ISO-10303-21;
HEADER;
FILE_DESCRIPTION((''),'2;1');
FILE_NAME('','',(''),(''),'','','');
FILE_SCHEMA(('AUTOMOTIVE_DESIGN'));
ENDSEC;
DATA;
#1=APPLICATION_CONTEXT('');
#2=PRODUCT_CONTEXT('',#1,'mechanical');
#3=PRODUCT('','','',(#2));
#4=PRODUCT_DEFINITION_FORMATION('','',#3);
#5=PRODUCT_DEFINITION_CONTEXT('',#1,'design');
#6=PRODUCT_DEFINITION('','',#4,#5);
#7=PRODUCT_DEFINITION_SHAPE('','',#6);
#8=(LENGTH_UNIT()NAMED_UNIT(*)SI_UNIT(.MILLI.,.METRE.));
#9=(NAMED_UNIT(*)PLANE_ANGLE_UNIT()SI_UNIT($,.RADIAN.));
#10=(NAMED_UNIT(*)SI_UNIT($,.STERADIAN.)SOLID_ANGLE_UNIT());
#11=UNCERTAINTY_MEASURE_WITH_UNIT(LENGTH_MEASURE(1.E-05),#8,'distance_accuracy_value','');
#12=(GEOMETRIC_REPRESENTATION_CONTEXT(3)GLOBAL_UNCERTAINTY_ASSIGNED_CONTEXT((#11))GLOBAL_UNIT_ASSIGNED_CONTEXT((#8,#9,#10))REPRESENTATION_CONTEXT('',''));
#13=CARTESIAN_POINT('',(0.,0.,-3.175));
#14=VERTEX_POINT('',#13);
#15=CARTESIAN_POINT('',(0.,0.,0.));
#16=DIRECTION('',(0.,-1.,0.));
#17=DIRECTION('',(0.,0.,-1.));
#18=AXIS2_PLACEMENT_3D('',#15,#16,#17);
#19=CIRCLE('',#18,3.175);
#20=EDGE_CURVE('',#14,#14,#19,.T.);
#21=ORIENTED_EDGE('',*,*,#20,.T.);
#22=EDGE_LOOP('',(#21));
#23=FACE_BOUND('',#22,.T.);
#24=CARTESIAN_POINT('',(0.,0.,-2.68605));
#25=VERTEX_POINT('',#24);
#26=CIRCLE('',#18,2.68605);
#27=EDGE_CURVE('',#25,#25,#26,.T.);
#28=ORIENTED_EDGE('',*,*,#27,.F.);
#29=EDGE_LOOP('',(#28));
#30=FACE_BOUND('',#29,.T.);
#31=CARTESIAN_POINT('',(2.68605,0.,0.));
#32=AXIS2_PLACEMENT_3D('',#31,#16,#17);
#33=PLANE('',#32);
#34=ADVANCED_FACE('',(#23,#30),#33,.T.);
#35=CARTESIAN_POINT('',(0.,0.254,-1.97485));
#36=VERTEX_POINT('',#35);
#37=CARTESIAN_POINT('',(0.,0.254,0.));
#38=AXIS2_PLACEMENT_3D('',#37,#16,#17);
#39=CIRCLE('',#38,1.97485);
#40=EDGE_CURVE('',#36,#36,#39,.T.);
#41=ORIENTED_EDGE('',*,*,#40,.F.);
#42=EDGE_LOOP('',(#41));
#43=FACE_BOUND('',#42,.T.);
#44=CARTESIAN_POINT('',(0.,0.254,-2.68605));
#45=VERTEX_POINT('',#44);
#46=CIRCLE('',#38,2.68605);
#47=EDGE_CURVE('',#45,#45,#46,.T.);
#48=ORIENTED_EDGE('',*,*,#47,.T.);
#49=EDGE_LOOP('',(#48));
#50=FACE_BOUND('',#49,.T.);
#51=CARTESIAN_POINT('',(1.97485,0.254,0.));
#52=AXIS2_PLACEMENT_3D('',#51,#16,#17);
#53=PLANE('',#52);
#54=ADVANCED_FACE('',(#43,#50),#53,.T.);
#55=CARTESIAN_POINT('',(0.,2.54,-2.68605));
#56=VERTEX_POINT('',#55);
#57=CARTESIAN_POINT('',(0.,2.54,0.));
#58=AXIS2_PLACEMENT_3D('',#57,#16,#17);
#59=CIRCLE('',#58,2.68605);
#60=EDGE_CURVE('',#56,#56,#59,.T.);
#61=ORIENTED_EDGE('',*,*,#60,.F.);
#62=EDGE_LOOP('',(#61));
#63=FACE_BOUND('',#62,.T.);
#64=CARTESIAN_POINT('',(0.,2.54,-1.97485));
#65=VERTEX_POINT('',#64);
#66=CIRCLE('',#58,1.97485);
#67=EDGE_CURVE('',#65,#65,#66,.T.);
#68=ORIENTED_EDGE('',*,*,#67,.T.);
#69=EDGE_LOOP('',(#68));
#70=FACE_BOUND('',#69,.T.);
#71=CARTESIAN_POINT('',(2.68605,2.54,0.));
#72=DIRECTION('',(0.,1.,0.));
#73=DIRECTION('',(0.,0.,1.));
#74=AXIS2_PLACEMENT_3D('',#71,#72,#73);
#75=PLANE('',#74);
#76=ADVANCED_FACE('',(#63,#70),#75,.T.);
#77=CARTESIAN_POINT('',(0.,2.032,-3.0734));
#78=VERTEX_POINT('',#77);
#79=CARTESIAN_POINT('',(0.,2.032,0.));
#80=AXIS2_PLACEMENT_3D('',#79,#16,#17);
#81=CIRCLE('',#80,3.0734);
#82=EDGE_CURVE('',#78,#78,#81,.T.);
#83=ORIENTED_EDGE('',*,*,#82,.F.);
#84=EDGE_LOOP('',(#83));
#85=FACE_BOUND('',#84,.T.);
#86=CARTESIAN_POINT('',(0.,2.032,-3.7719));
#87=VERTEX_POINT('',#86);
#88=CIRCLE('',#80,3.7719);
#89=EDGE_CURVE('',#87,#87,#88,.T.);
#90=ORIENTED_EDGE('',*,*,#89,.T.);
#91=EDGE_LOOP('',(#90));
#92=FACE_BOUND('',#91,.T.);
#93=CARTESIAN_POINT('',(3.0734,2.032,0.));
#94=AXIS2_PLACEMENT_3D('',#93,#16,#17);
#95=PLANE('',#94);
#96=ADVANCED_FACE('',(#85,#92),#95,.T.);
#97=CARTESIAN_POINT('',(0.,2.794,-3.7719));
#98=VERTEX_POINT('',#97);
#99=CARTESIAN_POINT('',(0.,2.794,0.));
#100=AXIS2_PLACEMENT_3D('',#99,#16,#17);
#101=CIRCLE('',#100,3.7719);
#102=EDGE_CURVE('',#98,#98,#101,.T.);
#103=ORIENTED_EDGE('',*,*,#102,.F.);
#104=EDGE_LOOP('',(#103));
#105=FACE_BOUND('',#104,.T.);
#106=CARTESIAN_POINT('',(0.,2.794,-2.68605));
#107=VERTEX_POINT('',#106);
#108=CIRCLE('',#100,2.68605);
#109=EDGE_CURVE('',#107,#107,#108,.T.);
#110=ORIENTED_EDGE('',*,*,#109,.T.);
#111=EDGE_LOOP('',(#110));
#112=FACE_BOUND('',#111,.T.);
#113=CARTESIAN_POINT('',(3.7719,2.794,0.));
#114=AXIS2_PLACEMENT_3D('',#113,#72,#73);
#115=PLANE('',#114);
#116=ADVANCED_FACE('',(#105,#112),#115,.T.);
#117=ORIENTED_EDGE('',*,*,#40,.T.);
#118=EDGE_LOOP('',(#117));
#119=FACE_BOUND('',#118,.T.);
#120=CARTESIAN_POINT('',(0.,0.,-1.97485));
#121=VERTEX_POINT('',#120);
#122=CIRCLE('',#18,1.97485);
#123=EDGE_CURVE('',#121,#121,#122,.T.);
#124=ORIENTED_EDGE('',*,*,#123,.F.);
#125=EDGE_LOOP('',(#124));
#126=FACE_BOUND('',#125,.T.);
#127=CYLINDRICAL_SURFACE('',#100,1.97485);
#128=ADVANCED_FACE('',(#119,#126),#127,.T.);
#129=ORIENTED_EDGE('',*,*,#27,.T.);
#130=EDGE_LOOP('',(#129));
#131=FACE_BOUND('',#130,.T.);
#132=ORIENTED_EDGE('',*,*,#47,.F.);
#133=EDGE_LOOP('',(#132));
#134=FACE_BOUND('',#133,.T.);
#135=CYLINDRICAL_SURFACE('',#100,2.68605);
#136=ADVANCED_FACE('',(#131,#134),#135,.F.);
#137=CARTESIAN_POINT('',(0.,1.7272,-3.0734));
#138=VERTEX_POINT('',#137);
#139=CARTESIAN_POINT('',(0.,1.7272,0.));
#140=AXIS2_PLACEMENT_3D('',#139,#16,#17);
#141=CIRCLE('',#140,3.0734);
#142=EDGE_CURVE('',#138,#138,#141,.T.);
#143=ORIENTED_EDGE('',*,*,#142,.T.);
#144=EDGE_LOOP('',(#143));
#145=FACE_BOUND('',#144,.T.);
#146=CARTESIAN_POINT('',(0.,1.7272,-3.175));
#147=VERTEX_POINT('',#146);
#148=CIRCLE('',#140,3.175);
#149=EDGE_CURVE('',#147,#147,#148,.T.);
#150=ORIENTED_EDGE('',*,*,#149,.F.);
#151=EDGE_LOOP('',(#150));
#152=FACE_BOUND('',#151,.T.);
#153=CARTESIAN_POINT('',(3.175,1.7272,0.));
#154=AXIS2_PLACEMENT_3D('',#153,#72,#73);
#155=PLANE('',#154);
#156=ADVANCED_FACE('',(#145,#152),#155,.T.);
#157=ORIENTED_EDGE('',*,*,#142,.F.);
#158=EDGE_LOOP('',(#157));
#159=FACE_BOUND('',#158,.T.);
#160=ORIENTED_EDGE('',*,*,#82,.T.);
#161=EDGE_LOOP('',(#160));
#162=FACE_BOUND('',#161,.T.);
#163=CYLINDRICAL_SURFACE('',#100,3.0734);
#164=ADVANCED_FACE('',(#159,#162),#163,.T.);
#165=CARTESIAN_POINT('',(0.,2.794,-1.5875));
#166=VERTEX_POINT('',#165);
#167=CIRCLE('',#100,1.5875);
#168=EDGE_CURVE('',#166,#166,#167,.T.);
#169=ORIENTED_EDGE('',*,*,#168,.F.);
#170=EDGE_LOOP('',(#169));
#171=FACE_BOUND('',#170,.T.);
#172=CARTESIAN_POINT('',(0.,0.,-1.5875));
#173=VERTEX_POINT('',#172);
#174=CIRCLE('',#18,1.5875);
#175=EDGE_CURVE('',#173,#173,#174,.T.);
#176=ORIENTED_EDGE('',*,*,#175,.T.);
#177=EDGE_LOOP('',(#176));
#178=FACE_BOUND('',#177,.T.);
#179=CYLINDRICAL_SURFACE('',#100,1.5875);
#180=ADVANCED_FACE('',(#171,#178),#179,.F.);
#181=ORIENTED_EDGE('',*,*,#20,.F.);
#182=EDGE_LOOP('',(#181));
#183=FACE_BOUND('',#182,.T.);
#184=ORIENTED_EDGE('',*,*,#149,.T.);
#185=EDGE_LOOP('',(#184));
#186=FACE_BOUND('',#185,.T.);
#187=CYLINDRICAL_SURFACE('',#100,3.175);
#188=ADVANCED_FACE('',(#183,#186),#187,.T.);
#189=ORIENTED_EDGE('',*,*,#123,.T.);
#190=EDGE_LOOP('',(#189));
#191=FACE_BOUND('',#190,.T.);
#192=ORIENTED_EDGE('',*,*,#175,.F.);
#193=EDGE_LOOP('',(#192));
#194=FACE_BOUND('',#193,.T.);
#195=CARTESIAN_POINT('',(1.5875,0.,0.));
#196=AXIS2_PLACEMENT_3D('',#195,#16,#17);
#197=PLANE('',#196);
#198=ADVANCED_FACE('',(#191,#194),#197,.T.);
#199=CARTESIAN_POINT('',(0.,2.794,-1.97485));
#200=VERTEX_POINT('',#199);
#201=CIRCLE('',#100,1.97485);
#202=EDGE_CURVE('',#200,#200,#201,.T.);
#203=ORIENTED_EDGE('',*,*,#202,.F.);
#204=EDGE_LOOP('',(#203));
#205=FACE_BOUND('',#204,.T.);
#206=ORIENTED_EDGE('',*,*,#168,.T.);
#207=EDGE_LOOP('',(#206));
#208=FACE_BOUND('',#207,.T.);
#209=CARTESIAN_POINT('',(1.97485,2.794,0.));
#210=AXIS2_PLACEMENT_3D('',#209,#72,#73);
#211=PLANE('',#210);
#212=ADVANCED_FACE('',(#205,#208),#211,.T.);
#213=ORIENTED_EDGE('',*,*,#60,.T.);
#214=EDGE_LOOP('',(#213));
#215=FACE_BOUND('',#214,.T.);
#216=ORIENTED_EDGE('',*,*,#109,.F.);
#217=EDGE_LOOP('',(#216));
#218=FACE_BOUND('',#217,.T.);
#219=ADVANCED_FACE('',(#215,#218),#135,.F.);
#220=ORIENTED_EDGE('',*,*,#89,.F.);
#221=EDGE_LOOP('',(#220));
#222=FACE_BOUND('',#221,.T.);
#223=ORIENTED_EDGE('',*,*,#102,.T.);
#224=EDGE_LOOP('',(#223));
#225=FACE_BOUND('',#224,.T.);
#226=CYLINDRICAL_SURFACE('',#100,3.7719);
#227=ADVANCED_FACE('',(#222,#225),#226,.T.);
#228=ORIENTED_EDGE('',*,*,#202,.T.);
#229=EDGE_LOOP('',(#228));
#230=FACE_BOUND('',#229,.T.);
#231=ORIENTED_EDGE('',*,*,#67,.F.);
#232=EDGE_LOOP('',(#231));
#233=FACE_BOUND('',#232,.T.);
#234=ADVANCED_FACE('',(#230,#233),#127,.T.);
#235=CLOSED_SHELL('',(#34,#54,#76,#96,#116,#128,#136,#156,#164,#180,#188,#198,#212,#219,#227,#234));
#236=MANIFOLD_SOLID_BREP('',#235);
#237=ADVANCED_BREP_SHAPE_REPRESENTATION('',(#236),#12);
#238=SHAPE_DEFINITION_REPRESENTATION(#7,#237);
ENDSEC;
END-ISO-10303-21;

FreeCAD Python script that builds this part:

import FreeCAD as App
import Part
import Sketcher
from FreeCAD import Vector
Q = App.Units.Quantity


def add_polygon(sketch, points):
    """Adds a closed chain of lines whose ends are joined by coincident constraints."""
    first, n = sketch.GeometryCount, len(points)
    for a, b in zip(points, points[1:] + points[:1]):
        sketch.addGeometry(Part.LineSegment(App.Vector(*a, 0), App.Vector(*b, 0)), False)
    for i in range(n):
        sketch.addConstraint(Sketcher.Constraint("Coincident", first + i, 2, first + (i + 1) % n, 1))

doc = App.newDocument("Part")
body = doc.addObject("PartDesign::Body", "Body")

sketch1 = doc.addObject("Sketcher::SketchObject", "Sketch")
body.addObject(sketch1)
sketch1.AttachmentSupport = (doc.XY_Plane, [""])
sketch1.MapMode = "FlatFace"
add_polygon(sketch1, [(1.97485, 0.254), (2.68605, 0.254), (2.68605, 0), (3.175, 0), (3.175, 1.7272), (3.0734, 1.7272), (3.0734, 2.032), (3.7719, 2.032), (3.7719, 2.794), (2.68605, 2.794), (2.68605, 2.54), (1.97485, 2.54), (1.97485, 2.794), (1.5875, 2.794), (1.5875, 0), (1.97485, 0)])
sketch1.addConstraint(Sketcher.Constraint("Horizontal", 0))
sketch1.addConstraint(Sketcher.Constraint("Vertical", 1))
sketch1.addConstraint(Sketcher.Constraint("Horizontal", 2))
sketch1.addConstraint(Sketcher.Constraint("Vertical", 3))
sketch1.addConstraint(Sketcher.Constraint("Horizontal", 4))
sketch1.addConstraint(Sketcher.Constraint("Vertical", 5))
sketch1.addConstraint(Sketcher.Constraint("Horizontal", 6))
sketch1.addConstraint(Sketcher.Constraint("Vertical", 7))
sketch1.addConstraint(Sketcher.Constraint("Horizontal", 8))
sketch1.addConstraint(Sketcher.Constraint("Vertical", 9))
sketch1.addConstraint(Sketcher.Constraint("Horizontal", 10))
sketch1.addConstraint(Sketcher.Constraint("Vertical", 11))
sketch1.addConstraint(Sketcher.Constraint("Horizontal", 12))
sketch1.addConstraint(Sketcher.Constraint("Vertical", 13))
sketch1.addConstraint(Sketcher.Constraint("Horizontal", 14))
sketch1.addConstraint(Sketcher.Constraint("Vertical", 15))
sketch1.addConstraint(Sketcher.Constraint("PointOnObject", 1, 2, -1))
sketch1.addConstraint(Sketcher.Constraint("PointOnObject", 13, 2, -1))
sketch1.addConstraint(Sketcher.Constraint("Horizontal", 8, 2, 11, 2))
sketch1.addConstraint(Sketcher.Constraint("Vertical", 1, 2, 8, 2))
sketch1.addConstraint(Sketcher.Constraint("Vertical", 11, 2, 14, 2))
sketch1.addConstraint(Sketcher.Constraint("Equal", 1, 9))
sketch1.addConstraint(Sketcher.Constraint("DistanceY", 1, 2, 1, 1, Q("0.01 in")))
sketch1.addConstraint(Sketcher.Constraint("DistanceY", 7, 1, 7, 2, Q("0.03 in")))
sketch1.addConstraint(Sketcher.Constraint("DistanceY", 13, 2, 13, 1, Q("0.11 in")))
sketch1.addConstraint(Sketcher.Constraint("DistanceX", 0, 1, 0, 2, Q("0.028 in")))
sketch1.addConstraint(Sketcher.Constraint("DistanceX", 4, 2, 4, 1, Q("0.004 in")))
sketch1.addConstraint(Sketcher.Constraint("DistanceY", 3, 1, 3, 2, Q("0.068 in")))
sketch1.addConstraint(Sketcher.Constraint("DistanceX", 6, 1, 6, 2, Q("0.0275 in")))
sketch1.addConstraint(Sketcher.Constraint("DistanceX", -1, 1, 2, 2, Q("0.125 in")))
sketch1.addConstraint(Sketcher.Constraint("DistanceX", -1, 1, 12, 2, Q("0.0625 in")))
sketch1.addConstraint(Sketcher.Constraint("DistanceX", 2, 1, 2, 2, Q("0.48895 mm")))
revolution = doc.addObject("PartDesign::Revolution", "Revolution")
body.addObject(revolution)
revolution.Profile = sketch1
revolution.ReferenceAxis = (sketch1, ["V_Axis"])
revolution.Angle = 360

doc.recompute()
